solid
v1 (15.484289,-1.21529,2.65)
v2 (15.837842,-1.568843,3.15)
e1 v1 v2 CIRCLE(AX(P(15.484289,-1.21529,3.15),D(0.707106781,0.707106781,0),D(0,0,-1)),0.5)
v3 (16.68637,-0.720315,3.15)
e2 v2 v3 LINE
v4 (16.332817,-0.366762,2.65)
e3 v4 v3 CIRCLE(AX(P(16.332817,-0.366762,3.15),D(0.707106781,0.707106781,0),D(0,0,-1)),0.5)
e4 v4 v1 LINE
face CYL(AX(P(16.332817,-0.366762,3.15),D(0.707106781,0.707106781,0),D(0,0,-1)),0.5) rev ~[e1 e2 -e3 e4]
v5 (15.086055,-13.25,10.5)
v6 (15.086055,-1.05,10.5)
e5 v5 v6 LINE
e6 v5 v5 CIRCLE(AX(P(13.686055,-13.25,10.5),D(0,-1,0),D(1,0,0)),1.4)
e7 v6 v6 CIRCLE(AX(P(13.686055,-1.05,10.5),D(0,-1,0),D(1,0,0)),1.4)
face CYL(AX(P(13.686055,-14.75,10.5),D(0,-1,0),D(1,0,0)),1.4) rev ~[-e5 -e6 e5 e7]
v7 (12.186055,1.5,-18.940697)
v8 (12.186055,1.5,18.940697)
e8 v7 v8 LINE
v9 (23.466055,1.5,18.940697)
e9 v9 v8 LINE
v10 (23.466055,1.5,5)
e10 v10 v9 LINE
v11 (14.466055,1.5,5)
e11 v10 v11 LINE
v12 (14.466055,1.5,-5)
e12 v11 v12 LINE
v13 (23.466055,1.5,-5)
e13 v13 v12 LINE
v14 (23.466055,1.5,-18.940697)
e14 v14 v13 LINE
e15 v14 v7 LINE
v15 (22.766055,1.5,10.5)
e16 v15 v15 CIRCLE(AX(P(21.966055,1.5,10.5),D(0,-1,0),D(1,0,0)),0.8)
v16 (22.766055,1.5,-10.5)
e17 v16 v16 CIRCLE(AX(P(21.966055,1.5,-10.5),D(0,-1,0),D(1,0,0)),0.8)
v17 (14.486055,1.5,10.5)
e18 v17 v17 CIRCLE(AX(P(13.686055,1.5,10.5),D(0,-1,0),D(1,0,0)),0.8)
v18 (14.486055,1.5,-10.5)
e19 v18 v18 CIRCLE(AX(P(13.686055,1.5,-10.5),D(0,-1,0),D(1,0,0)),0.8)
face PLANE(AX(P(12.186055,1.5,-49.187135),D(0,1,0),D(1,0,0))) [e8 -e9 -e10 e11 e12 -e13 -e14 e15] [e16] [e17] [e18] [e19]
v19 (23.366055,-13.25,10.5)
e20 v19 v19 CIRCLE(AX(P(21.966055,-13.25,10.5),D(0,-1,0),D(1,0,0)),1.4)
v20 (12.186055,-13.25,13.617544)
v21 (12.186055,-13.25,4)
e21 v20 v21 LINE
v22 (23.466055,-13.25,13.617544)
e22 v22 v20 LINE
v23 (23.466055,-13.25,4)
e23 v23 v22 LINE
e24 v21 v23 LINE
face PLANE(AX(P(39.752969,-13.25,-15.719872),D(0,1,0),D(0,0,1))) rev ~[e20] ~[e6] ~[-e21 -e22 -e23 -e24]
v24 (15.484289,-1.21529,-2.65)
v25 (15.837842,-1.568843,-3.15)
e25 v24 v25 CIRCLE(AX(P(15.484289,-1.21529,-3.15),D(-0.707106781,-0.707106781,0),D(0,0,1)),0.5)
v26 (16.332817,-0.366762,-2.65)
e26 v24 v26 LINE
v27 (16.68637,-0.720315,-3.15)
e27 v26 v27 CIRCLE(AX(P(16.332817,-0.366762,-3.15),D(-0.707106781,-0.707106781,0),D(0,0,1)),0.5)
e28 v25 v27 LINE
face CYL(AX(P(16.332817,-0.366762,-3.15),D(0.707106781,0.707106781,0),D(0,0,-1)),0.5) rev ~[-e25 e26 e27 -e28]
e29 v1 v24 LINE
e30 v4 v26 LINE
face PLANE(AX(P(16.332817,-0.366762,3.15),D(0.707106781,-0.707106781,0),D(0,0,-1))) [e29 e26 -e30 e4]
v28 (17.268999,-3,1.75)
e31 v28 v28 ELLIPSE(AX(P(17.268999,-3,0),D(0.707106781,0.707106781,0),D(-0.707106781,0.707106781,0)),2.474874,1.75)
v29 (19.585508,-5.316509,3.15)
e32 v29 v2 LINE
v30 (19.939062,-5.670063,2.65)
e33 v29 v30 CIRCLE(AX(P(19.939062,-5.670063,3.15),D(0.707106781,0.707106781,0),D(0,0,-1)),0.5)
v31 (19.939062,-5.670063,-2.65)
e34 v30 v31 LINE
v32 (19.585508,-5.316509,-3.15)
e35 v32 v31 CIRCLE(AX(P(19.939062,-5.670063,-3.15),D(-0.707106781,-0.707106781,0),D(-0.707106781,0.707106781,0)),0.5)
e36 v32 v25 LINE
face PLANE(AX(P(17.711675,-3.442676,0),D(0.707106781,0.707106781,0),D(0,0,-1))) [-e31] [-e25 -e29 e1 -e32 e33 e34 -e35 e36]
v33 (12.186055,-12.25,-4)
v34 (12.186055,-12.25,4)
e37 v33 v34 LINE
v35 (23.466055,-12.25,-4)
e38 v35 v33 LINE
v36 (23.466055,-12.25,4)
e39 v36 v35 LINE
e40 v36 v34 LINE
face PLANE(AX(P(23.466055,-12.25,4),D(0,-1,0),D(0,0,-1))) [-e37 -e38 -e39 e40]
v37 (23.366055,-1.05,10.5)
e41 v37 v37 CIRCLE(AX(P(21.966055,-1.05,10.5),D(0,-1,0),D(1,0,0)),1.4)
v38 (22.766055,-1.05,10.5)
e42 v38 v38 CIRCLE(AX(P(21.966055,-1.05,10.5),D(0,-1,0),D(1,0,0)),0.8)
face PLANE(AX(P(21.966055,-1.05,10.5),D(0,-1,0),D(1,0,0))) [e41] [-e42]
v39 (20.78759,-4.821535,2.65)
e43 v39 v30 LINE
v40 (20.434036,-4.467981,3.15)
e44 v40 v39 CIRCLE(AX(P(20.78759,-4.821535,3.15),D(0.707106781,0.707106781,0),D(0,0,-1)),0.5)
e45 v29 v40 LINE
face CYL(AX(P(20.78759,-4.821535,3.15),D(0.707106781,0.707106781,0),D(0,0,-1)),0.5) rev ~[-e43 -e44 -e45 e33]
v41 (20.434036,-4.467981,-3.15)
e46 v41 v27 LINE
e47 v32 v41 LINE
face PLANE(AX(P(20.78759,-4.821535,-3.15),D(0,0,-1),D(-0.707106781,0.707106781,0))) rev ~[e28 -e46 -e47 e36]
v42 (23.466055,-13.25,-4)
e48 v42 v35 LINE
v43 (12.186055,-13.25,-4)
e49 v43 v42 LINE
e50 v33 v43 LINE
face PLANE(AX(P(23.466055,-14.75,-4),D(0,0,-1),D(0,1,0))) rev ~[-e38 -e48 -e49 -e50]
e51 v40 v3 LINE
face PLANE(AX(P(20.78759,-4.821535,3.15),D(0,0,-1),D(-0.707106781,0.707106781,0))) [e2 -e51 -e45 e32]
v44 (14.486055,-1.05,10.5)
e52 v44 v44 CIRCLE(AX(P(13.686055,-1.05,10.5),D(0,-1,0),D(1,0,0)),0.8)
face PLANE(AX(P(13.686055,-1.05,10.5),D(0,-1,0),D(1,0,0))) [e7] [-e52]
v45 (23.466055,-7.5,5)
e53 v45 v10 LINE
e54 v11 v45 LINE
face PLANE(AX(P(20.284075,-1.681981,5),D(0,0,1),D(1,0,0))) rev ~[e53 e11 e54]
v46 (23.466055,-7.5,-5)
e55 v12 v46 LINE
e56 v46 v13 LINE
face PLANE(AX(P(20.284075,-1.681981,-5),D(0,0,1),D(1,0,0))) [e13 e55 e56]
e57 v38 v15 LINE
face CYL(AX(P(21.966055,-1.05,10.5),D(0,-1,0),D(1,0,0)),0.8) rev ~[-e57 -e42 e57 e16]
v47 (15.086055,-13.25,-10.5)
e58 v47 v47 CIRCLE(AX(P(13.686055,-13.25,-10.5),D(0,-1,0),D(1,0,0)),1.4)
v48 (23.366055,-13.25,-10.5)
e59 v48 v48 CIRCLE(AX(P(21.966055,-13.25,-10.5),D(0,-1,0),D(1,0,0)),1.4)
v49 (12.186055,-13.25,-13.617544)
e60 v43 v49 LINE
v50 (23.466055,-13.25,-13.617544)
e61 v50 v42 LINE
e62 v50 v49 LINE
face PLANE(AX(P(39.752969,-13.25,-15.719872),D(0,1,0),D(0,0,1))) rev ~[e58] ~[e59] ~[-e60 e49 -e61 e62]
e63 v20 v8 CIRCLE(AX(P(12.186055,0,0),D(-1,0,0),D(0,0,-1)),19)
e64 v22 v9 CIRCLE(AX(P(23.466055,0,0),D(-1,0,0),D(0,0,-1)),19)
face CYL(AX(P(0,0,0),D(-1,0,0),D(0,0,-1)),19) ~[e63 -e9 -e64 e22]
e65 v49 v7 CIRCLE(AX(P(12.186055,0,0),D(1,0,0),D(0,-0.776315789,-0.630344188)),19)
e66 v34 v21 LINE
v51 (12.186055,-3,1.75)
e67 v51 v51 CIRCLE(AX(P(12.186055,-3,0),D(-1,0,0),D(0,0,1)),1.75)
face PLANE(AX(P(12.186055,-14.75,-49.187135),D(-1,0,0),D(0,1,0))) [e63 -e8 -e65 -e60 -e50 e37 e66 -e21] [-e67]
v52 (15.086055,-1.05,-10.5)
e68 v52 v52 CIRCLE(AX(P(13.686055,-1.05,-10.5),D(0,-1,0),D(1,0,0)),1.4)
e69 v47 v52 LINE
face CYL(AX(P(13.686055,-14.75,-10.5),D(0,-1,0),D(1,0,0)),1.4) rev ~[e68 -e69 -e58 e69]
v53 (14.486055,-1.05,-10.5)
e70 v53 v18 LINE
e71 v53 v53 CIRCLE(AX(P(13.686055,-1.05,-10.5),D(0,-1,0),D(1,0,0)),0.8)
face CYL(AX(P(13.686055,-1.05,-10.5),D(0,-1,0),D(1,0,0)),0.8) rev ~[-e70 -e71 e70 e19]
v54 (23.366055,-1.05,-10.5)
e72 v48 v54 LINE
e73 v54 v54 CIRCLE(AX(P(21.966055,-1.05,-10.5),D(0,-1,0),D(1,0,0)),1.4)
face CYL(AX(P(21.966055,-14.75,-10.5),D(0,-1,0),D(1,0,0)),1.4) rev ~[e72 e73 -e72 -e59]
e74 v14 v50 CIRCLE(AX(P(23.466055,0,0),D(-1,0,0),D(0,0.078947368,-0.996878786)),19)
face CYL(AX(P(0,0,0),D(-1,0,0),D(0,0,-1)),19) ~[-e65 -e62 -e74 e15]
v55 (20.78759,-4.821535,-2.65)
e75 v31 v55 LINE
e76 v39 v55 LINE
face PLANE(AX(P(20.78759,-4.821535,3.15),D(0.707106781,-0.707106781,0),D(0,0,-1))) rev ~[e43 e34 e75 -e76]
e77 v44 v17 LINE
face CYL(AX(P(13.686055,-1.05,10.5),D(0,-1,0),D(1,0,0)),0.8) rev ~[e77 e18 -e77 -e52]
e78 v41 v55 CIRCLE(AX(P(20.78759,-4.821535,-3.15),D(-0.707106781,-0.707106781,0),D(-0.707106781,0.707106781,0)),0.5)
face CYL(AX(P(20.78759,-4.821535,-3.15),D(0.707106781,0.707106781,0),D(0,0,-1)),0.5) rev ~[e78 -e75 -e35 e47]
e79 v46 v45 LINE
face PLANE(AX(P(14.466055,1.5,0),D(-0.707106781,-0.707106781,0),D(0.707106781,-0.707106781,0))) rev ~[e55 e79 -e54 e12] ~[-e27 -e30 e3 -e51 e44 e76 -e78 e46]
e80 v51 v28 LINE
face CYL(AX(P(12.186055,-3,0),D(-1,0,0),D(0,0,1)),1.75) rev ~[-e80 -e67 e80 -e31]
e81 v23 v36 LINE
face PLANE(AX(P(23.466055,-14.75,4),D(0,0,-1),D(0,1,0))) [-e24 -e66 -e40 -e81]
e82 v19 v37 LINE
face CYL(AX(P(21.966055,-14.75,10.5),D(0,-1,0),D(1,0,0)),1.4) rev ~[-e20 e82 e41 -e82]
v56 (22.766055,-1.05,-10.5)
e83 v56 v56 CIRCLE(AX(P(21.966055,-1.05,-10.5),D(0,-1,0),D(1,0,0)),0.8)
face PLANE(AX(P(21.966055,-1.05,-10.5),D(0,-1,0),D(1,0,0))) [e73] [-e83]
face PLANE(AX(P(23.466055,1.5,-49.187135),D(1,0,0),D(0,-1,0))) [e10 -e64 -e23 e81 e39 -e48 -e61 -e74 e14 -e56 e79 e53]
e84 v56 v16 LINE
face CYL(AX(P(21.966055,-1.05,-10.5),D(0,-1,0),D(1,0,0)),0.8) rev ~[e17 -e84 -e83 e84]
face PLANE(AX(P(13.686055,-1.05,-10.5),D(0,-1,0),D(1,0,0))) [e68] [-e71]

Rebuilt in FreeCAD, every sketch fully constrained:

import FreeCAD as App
import Part
import Sketcher

V = App.Vector

doc = App.newDocument("Part")
body = doc.addObject("PartDesign::Body", "Body")

sketch1 = body.newObject("Sketcher::SketchObject", "Sketch")
sketch1.AttachmentSupport = (doc.getObject("YZ_Plane"), [""])
sketch1.MapMode = "FlatFace"
sketch1.addGeometry(Part.Circle(V(0, 0, 0), V(0, 0, 1), 19), False)
sketch1.addConstraint([
    Sketcher.Constraint("Coincident", 0, 3, -1, 1),
    Sketcher.Constraint("Diameter", 0, 38.0),
])
pad1 = body.newObject("PartDesign::Pad", "Pad")
pad1.Profile = sketch1
pad1.Length = 40

sketch2 = body.newObject("Sketcher::SketchObject", "Sketch001")
sketch2.AttachmentSupport = (doc.getObject("XY_Plane"), [""])
sketch2.MapMode = "FlatFace"
sketch2.addGeometry([
    Part.LineSegment(V(-7.699, 26.699, 0), V(-7.699, -26.699, 0)),
    Part.LineSegment(V(-7.699, -26.699, 0), V(47.699, -26.699, 0)),
    Part.LineSegment(V(47.699, -26.699, 0), V(47.699, 26.699, 0)),
    Part.LineSegment(V(47.699, 26.699, 0), V(-7.699, 26.699, 0)),
    Part.LineSegment(V(12.186055, -14.75, 0), V(12.186055, 1.5, 0)),
    Part.LineSegment(V(12.186055, 1.5, 0), V(23.466055, 1.5, 0)),
    Part.LineSegment(V(23.466055, 1.5, 0), V(23.466055, -14.75, 0)),
    Part.LineSegment(V(23.466055, -14.75, 0), V(12.186055, -14.75, 0)),
], False)
sketch2.addConstraint([
    Sketcher.Constraint("Coincident", 0, 2, 1, 1),
    Sketcher.Constraint("Coincident", 1, 2, 2, 1),
    Sketcher.Constraint("Coincident", 2, 2, 3, 1),
    Sketcher.Constraint("Coincident", 3, 2, 0, 1),
    Sketcher.Constraint("Coincident", 4, 2, 5, 1),
    Sketcher.Constraint("Coincident", 5, 2, 6, 1),
    Sketcher.Constraint("Coincident", 6, 2, 7, 1),
    Sketcher.Constraint("Coincident", 7, 2, 4, 1),
    Sketcher.Constraint("Vertical", 0),
    Sketcher.Constraint("Horizontal", 1),
    Sketcher.Constraint("Vertical", 2),
    Sketcher.Constraint("Horizontal", 3),
    Sketcher.Constraint("Vertical", 4),
    Sketcher.Constraint("Horizontal", 5),
    Sketcher.Constraint("Vertical", 6),
    Sketcher.Constraint("Horizontal", 7),
    Sketcher.Constraint("DistanceX", 5, 1, 5, 2, 11.28),
    Sketcher.Constraint("DistanceY", 4, 1, 4, 2, 16.25),
    Sketcher.Constraint("DistanceY", -1, 1, 4, 2, 1.5),
    Sketcher.Constraint("DistanceX", 1, 1, 1, 2, 55.398),
    Sketcher.Constraint("DistanceY", 0, 2, 0, 1, 53.398),
    Sketcher.Constraint("DistanceX", 0, 2, -1, 1, 7.699),
    Sketcher.Constraint("DistanceY", 0, 2, -1, 1, 26.699),
    Sketcher.Constraint("DistanceX", -1, 1, 4, 2, 12.186055),
])
pocket1 = body.newObject("PartDesign::Pocket", "Pocket")
pocket1.Profile = sketch2
pocket1.Type = "ThroughAll"
pocket1.Midplane = True

sketch3 = body.newObject("Sketcher::SketchObject", "Sketch002")
sketch3.AttachmentSupport = (doc.getObject("YZ_Plane"), [""])
sketch3.MapMode = "FlatFace"
sketch3.AttachmentOffset = App.Placement(V(0, 0, 12.186055), App.Rotation())
sketch3.addGeometry(Part.Circle(V(-3, 0, 0), V(0, 0, 1), 1.75), False)
sketch3.addConstraint([
    Sketcher.Constraint("PointOnObject", 0, 3, -1),
    Sketcher.Constraint("Diameter", 0, 3.5),
    Sketcher.Constraint("DistanceX", 0, 3, -1, 1, 3.0),
])
pocket2 = body.newObject("PartDesign::Pocket", "Pocket001")
pocket2.Profile = sketch3
pocket2.Length = 7.4
pocket2.Reversed = True

sketch4 = body.newObject("Sketcher::SketchObject", "Sketch003")
sketch4.AttachmentSupport = (doc.getObject("XY_Plane"), [""])
sketch4.MapMode = "FlatFace"
sketch4.addGeometry([
    Part.LineSegment(V(14.466055, 1.5, 0), V(23.466055, -7.5, 0)),
    Part.LineSegment(V(23.466055, -7.5, 0), V(23.466055, 1.5, 0)),
    Part.LineSegment(V(23.466055, 1.5, 0), V(14.466055, 1.5, 0)),
], False)
sketch4.addConstraint([
    Sketcher.Constraint("Coincident", 0, 2, 1, 1),
    Sketcher.Constraint("Coincident", 1, 2, 2, 1),
    Sketcher.Constraint("Coincident", 2, 2, 0, 1),
    Sketcher.Constraint("Vertical", 1),
    Sketcher.Constraint("Horizontal", 2),
    Sketcher.Constraint("Equal", 2, 1),
    Sketcher.Constraint("DistanceX", 2, 2, 2, 1, 9.0),
    Sketcher.Constraint("DistanceY", 0, 2, -1, 1, 7.5),
    Sketcher.Constraint("DistanceX", -1, 1, 0, 2, 23.466055),
])
pocket3 = body.newObject("PartDesign::Pocket", "Pocket002")
pocket3.Profile = sketch4
pocket3.Length = 10
pocket3.Midplane = True

sketch5 = body.newObject("Sketcher::SketchObject", "Sketch004")
sketch5.Placement = App.Placement(V(7.983028, 7.983028, 0), App.Rotation(V(0, 0, -1), V(-0.707106781, 0.707106781, 0), V(0.707106781, 0.707106781, 0), "ZXY"))
sketch5.addGeometry([
    Part.LineSegment(V(-3.15, -11.808385, 0), V(-3.15, -18.108385, 0)),
    Part.LineSegment(V(-3.15, -18.108385, 0), V(3.15, -18.108385, 0)),
    Part.LineSegment(V(3.15, -18.108385, 0), V(3.15, -11.808385, 0)),
    Part.LineSegment(V(3.15, -11.808385, 0), V(-3.15, -11.808385, 0)),
], False)
sketch5.addConstraint([
    Sketcher.Constraint("Coincident", 0, 2, 1, 1),
    Sketcher.Constraint("Coincident", 1, 2, 2, 1),
    Sketcher.Constraint("Coincident", 2, 2, 3, 1),
    Sketcher.Constraint("Coincident", 3, 2, 0, 1),
    Sketcher.Constraint("Vertical", 0),
    Sketcher.Constraint("Horizontal", 1),
    Sketcher.Constraint("Vertical", 2),
    Sketcher.Constraint("Horizontal", 3),
    Sketcher.Constraint("Equal", 3, 0),
    Sketcher.Constraint("DistanceX", 1, 1, 1, 2, 6.3),
    Sketcher.Constraint("DistanceX", 0, 2, -1, 1, 3.15),
    Sketcher.Constraint("DistanceY", 0, 2, -1, 1, 18.108385),
])
pocket4 = body.newObject("PartDesign::Pocket", "Pocket003")
pocket4.Profile = sketch5
pocket4.Length = 1.2

sketch6 = body.newObject("Sketcher::SketchObject", "Sketch005")
sketch6.AttachmentSupport = (doc.getObject("XZ_Plane"), [""])
sketch6.MapMode = "FlatFace"
sketch6.AttachmentOffset = App.Placement(V(0, 0, 14.75), App.Rotation())
sketch6.addGeometry([
    Part.Circle(V(13.686055, 10.5, 0), V(0, 0, 1), 1.4),
    Part.Circle(V(21.966055, 10.5, 0), V(0, 0, 1), 1.4),
    Part.Circle(V(13.686055, -10.5, 0), V(0, 0, 1), 1.4),
    Part.Circle(V(21.966055, -10.5, 0), V(0, 0, 1), 1.4),
], False)
sketch6.addConstraint([
    Sketcher.Constraint("Equal", 0, 1),
    Sketcher.Constraint("Equal", 1, 2),
    Sketcher.Constraint("Equal", 2, 3),
    Sketcher.Constraint("Symmetric", 0, 3, 2, 3, -1),
    Sketcher.Constraint("Symmetric", 1, 3, 3, 3, -1),
    Sketcher.Constraint("Horizontal", 0, 3, 1, 3),
    Sketcher.Constraint("Diameter", 0, 2.8),
    Sketcher.Constraint("DistanceY", 2, 3, 0, 3, 21.0),
    Sketcher.Constraint("DistanceX", 0, 3, 1, 3, 8.28),
    Sketcher.Constraint("DistanceX", -1, 1, 0, 3, 13.686055),
])
pocket5 = body.newObject("PartDesign::Pocket", "Pocket004")
pocket5.Profile = sketch6
pocket5.Length = 13.7

sketch7 = body.newObject("Sketcher::SketchObject", "Sketch006")
sketch7.AttachmentSupport = (doc.getObject("XZ_Plane"), [""])
sketch7.MapMode = "FlatFace"
sketch7.AttachmentOffset = App.Placement(V(0, 0, 1.05), App.Rotation())
sketch7.addGeometry(Part.Circle(V(13.686055, 10.5, 0), V(0, 0, 1), 0.8), False)
sketch7.addConstraint([
    Sketcher.Constraint("Diameter", 0, 1.6),
    Sketcher.Constraint("DistanceY", -1, 1, 0, 3, 10.5),
    Sketcher.Constraint("DistanceX", -1, 1, 0, 3, 13.686055),
])
pocket6 = body.newObject("PartDesign::Pocket", "Pocket005")
pocket6.Profile = sketch7
pocket6.Type = "UpToFirst"

sketch8 = body.newObject("Sketcher::SketchObject", "Sketch007")
sketch8.AttachmentSupport = (doc.getObject("XZ_Plane"), [""])
sketch8.MapMode = "FlatFace"
sketch8.AttachmentOffset = App.Placement(V(0, 0, 1.05), App.Rotation())
sketch8.addGeometry(Part.Circle(V(21.966055, 10.5, 0), V(0, 0, 1), 0.8), False)
sketch8.addConstraint([
    Sketcher.Constraint("Diameter", 0, 1.6),
    Sketcher.Constraint("DistanceY", -1, 1, 0, 3, 10.5),
    Sketcher.Constraint("DistanceX", -1, 1, 0, 3, 21.966055),
])
pocket7 = body.newObject("PartDesign::Pocket", "Pocket006")
pocket7.Profile = sketch8
pocket7.Type = "UpToFirst"

sketch9 = body.newObject("Sketcher::SketchObject", "Sketch008")
sketch9.AttachmentSupport = (doc.getObject("XZ_Plane"), [""])
sketch9.MapMode = "FlatFace"
sketch9.AttachmentOffset = App.Placement(V(0, 0, 1.05), App.Rotation())
sketch9.addGeometry(Part.Circle(V(13.686055, -10.5, 0), V(0, 0, 1), 0.8), False)
sketch9.addConstraint([
    Sketcher.Constraint("Diameter", 0, 1.6),
    Sketcher.Constraint("DistanceY", 0, 3, -1, 1, 10.5),
    Sketcher.Constraint("DistanceX", -1, 1, 0, 3, 13.686055),
])
pocket8 = body.newObject("PartDesign::Pocket", "Pocket007")
pocket8.Profile = sketch9
pocket8.Type = "UpToFirst"

sketch10 = body.newObject("Sketcher::SketchObject", "Sketch009")
sketch10.AttachmentSupport = (doc.getObject("XZ_Plane"), [""])
sketch10.MapMode = "FlatFace"
sketch10.AttachmentOffset = App.Placement(V(0, 0, 1.05), App.Rotation())
sketch10.addGeometry(Part.Circle(V(21.966055, -10.5, 0), V(0, 0, 1), 0.8), False)
sketch10.addConstraint([
    Sketcher.Constraint("Diameter", 0, 1.6),
    Sketcher.Constraint("DistanceY", 0, 3, -1, 1, 10.5),
    Sketcher.Constraint("DistanceX", -1, 1, 0, 3, 21.966055),
])
pocket9 = body.newObject("PartDesign::Pocket", "Pocket008")
pocket9.Profile = sketch10
pocket9.Type = "UpToFirst"

sketch11 = body.newObject("Sketcher::SketchObject", "Sketch010")
sketch11.AttachmentSupport = (doc.getObject("YZ_Plane"), [""])
sketch11.MapMode = "FlatFace"
sketch11.AttachmentOffset = App.Placement(V(0, 0, 23.466055), App.Rotation())
sketch11.addGeometry([
    Part.LineSegment(V(-12.25, 4, 0), V(-14.75, 4, 0)),
    Part.LineSegment(V(-14.75, 4, 0), V(-14.75, -4, 0)),
    Part.LineSegment(V(-14.75, -4, 0), V(-12.25, -4, 0)),
    Part.LineSegment(V(-12.25, -4, 0), V(-12.25, 4, 0)),
], False)
sketch11.addConstraint([
    Sketcher.Constraint("Coincident", 0, 2, 1, 1),
    Sketcher.Constraint("Coincident", 1, 2, 2, 1),
    Sketcher.Constraint("Coincident", 2, 2, 3, 1),
    Sketcher.Constraint("Coincident", 3, 2, 0, 1),
    Sketcher.Constraint("Horizontal", 0),
    Sketcher.Constraint("Vertical", 1),
    Sketcher.Constraint("Horizontal", 2),
    Sketcher.Constraint("Vertical", 3),
    Sketcher.Constraint("DistanceY", 1, 2, 1, 1, 8.0),
    Sketcher.Constraint("DistanceX", 0, 2, 0, 1, 2.5),
    Sketcher.Constraint("DistanceY", -1, 1, 0, 2, 4.0),
    Sketcher.Constraint("DistanceX", 0, 2, -1, 1, 14.75),
])
pocket10 = body.newObject("PartDesign::Pocket", "Pocket009")
pocket10.Profile = sketch11
pocket10.Type = "ThroughAll"

sketch12 = body.newObject("Sketcher::SketchObject", "Sketch011")
sketch12.Placement = App.Placement(V(7.983028, 7.983028, 0), App.Rotation(V(0, 0, -1), V(-0.707106781, 0.707106781, 0), V(0.707106781, 0.707106781, 0), "ZXY"))
sketch12.addGeometry([
    Part.Circle(V(-3.15, -11.808385, 0), V(0, 0, 1), 0.5),
    Part.Circle(V(3.15, -11.808385, 0), V(0, 0, 1), 0.5),
    Part.Circle(V(-3.15, -18.108385, 0), V(0, 0, 1), 0.5),
    Part.Circle(V(3.15, -18.108385, 0), V(0, 0, 1), 0.5),
], False)
sketch12.addConstraint([
    Sketcher.Constraint("Equal", 0, 1),
    Sketcher.Constraint("Equal", 1, 2),
    Sketcher.Constraint("Equal", 2, 3),
    Sketcher.Constraint("Symmetric", 0, 3, 1, 3, -2),
    Sketcher.Constraint("Symmetric", 2, 3, 3, 3, -2),
    Sketcher.Constraint("Vertical", 0, 3, 2, 3),
    Sketcher.Constraint("Diameter", 0, 1.0),
    Sketcher.Constraint("DistanceX", 0, 3, 1, 3, 6.3),
    Sketcher.Constraint("DistanceY", 2, 3, 0, 3, 6.3),
    Sketcher.Constraint("DistanceY", 0, 3, -1, 1, 11.808385),
])
pocket11 = body.newObject("PartDesign::Pocket", "Pocket010")
pocket11.Profile = sketch12
pocket11.Length = 1.2

sketch13 = body.newObject("Sketcher::SketchObject", "Sketch012")
sketch13.AttachmentSupport = (doc.getObject("YZ_Plane"), [""])
sketch13.MapMode = "FlatFace"
sketch13.AttachmentOffset = App.Placement(V(0, 0, 12.186055), App.Rotation())
sketch13.addGeometry([
    Part.LineSegment(V(-13.25, -15.719872, 0), V(-16.443533, -15.719872, 0)),
    Part.LineSegment(V(-16.443533, -15.719872, 0), V(-16.443533, 15.46836, 0)),
    Part.LineSegment(V(-16.443533, 15.46836, 0), V(-13.25, 15.46836, 0)),
    Part.LineSegment(V(-13.25, 15.46836, 0), V(-13.25, -15.719872, 0)),
], False)
sketch13.addConstraint([
    Sketcher.Constraint("Coincident", 0, 2, 1, 1),
    Sketcher.Constraint("Coincident", 1, 2, 2, 1),
    Sketcher.Constraint("Coincident", 2, 2, 3, 1),
    Sketcher.Constraint("Coincident", 3, 2, 0, 1),
    Sketcher.Constraint("Horizontal", 0),
    Sketcher.Constraint("Vertical", 1),
    Sketcher.Constraint("Horizontal", 2),
    Sketcher.Constraint("Vertical", 3),
    Sketcher.Constraint("DistanceX", 2, 2, -1, 1, 13.25),
    Sketcher.Constraint("DistanceX", 0, 2, 0, 1, 3.193533),
    Sketcher.Constraint("DistanceY", 1, 1, 1, 2, 31.188232),
    Sketcher.Constraint("DistanceY", 0, 2, -1, 1, 15.719872),
])
pocket12 = body.newObject("PartDesign::Pocket", "Pocket011")
pocket12.Profile = sketch13
pocket12.Type = "ThroughAll"
pocket12.Midplane = True

doc.recompute()
